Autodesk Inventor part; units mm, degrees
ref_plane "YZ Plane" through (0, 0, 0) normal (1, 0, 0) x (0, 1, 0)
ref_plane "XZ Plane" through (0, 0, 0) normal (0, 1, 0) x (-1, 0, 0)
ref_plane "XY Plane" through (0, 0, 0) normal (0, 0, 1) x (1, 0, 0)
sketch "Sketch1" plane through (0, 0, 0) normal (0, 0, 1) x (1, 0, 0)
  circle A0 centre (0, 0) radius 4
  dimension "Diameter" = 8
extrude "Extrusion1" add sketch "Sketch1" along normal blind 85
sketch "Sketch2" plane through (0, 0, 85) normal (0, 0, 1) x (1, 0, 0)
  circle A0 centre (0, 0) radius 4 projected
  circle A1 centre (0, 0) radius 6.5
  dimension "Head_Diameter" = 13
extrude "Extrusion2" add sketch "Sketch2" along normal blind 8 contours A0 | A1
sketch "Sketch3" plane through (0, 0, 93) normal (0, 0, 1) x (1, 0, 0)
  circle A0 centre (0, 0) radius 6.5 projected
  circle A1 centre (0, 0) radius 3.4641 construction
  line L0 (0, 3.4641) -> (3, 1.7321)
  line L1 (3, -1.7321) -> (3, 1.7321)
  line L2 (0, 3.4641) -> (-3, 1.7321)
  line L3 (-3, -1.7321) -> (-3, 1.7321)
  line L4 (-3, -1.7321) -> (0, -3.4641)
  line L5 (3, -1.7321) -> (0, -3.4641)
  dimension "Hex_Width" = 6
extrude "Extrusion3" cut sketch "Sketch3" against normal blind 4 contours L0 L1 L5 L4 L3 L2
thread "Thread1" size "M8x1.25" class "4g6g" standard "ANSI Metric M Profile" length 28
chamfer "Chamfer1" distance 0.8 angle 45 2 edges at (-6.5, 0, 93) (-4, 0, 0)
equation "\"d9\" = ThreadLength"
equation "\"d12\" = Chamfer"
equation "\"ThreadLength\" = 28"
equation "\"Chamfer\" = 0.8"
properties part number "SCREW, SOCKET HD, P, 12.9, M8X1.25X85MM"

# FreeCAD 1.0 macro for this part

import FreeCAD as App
import Part
import Sketcher
Q = App.Units.Quantity


def edges_at(feature, points):
    """Names of the edges that pass closest to the given points."""
    edges = feature.Shape.Edges
    near = lambda p: min(range(len(edges)), key=lambda i: edges[i].distToShape(Part.Vertex(*p))[0])
    return sorted({f"Edge{near(p) + 1}" for p in points})

doc = App.newDocument("Part")
params = doc.addObject("Spreadsheet::Sheet", "Params")
for row, (alias, value) in enumerate([
    ("sketch1_diameter", "8 mm"),
    ("pad1_length", "85 mm"),
    ("sketch2_diameter", "13 mm"),
    ("pad2_length", "8 mm"),
    ("pocket1_length", "4 mm"),
    ("chamfer_size", "0.8 mm"),
], start=1):
    params.set(f"A{row}", alias)
    params.set(f"B{row}", "=" + value)
    params.setAlias(f"B{row}", alias)

body = doc.addObject("PartDesign::Body", "Body")

sketch1 = body.newObject("Sketcher::SketchObject", "Sketch")
sketch1.AttachmentSupport = (doc.getObject("XY_Plane"), [""])
sketch1.MapMode = "FlatFace"
sketch1.addGeometry(Part.Circle(App.Vector(0, 0, 0), App.Vector(0, 0, 1), 4), False)
sketch1.addConstraint(Sketcher.Constraint("Coincident", 0, 3, -1, 1))
sketch1.addConstraint(Sketcher.Constraint("Diameter", 0, Q("8 mm")))
sketch1.setExpression("Constraints[1]", "Params.sketch1_diameter")
pad1 = body.newObject("PartDesign::Pad", "Pad")
pad1.Profile = sketch1
pad1.setExpression("Length", "Params.pad1_length")

sketch2 = body.newObject("Sketcher::SketchObject", "Sketch001")
sketch2.AttachmentSupport = (doc.getObject("XY_Plane"), [""])
sketch2.MapMode = "FlatFace"
sketch2.AttachmentOffset = App.Placement(App.Vector(0, 0, 85), App.Rotation())
sketch2.addGeometry(Part.Circle(App.Vector(0, 0, 0), App.Vector(0, 0, 1), 6), False)
sketch2.addConstraint(Sketcher.Constraint("Coincident", 0, 3, -1, 1))
sketch2.addConstraint(Sketcher.Constraint("Diameter", 0, Q("13 mm")))
sketch2.setExpression("Constraints[1]", "Params.sketch2_diameter")
pad2 = body.newObject("PartDesign::Pad", "Pad001")
pad2.Profile = sketch2
pad2.setExpression("Length", "Params.pad2_length")

sketch3 = body.newObject("Sketcher::SketchObject", "Sketch002")
sketch3.AttachmentSupport = (doc.getObject("XY_Plane"), [""])
sketch3.MapMode = "FlatFace"
sketch3.AttachmentOffset = App.Placement(App.Vector(0, 0, 93), App.Rotation())
sketch3.addGeometry(Part.LineSegment(App.Vector(3, 1.7, 0), App.Vector(0, 3.5, 0)), False)
sketch3.addGeometry(Part.LineSegment(App.Vector(0, 3.5, 0), App.Vector(-3, 1.7, 0)), False)
sketch3.addGeometry(Part.LineSegment(App.Vector(-3, 1.7, 0), App.Vector(-3, -1.7, 0)), False)
sketch3.addGeometry(Part.LineSegment(App.Vector(-3, -1.7, 0), App.Vector(0, -3.5, 0)), False)
sketch3.addGeometry(Part.LineSegment(App.Vector(0, -3.5, 0), App.Vector(3, -1.7, 0)), False)
sketch3.addGeometry(Part.LineSegment(App.Vector(3, -1.7, 0), App.Vector(3, 1.7, 0)), False)
sketch3.addConstraint(Sketcher.Constraint("Coincident", 0, 2, 1, 1))
sketch3.addConstraint(Sketcher.Constraint("Coincident", 1, 2, 2, 1))
sketch3.addConstraint(Sketcher.Constraint("Coincident", 2, 2, 3, 1))
sketch3.addConstraint(Sketcher.Constraint("Coincident", 3, 2, 4, 1))
sketch3.addConstraint(Sketcher.Constraint("Coincident", 4, 2, 5, 1))
sketch3.addConstraint(Sketcher.Constraint("Coincident", 5, 2, 0, 1))
sketch3.addConstraint(Sketcher.Constraint("Vertical", 2))
sketch3.addConstraint(Sketcher.Constraint("Vertical", 5))
sketch3.addConstraint(Sketcher.Constraint("Symmetric", 0, 2, 3, 2, -1, 1))
sketch3.addConstraint(Sketcher.Constraint("Symmetric", 1, 2, 4, 2, -1, 1))
sketch3.addConstraint(Sketcher.Constraint("PointOnObject", 0, 2, -2))
sketch3.addConstraint(Sketcher.Constraint("Parallel", 0, 3))
sketch3.addConstraint(Sketcher.Constraint("Horizontal", 2, 2, 4, 2))
sketch3.addConstraint(Sketcher.Constraint("DistanceX", 2, 2, 4, 2, Q("6 mm")))
sketch3.addConstraint(Sketcher.Constraint("Angle", 0, Q("150.0007 deg")))
sketch3.addConstraint(Sketcher.Constraint("DistanceY", 2, 2, 2, 1, Q("3.4642 mm")))
pocket1 = body.newObject("PartDesign::Pocket", "Pocket")
pocket1.Profile = sketch3
pocket1.setExpression("Length", "Params.pocket1_length")
doc.recompute()

chamfer = body.newObject("PartDesign::Chamfer", "Chamfer")
chamfer.Base = (pocket1, edges_at(pocket1, [(-6.5, 0, 93), (-4, 0, 0)]))
chamfer.setExpression("Size", "Params.chamfer_size")

doc.recompute()
